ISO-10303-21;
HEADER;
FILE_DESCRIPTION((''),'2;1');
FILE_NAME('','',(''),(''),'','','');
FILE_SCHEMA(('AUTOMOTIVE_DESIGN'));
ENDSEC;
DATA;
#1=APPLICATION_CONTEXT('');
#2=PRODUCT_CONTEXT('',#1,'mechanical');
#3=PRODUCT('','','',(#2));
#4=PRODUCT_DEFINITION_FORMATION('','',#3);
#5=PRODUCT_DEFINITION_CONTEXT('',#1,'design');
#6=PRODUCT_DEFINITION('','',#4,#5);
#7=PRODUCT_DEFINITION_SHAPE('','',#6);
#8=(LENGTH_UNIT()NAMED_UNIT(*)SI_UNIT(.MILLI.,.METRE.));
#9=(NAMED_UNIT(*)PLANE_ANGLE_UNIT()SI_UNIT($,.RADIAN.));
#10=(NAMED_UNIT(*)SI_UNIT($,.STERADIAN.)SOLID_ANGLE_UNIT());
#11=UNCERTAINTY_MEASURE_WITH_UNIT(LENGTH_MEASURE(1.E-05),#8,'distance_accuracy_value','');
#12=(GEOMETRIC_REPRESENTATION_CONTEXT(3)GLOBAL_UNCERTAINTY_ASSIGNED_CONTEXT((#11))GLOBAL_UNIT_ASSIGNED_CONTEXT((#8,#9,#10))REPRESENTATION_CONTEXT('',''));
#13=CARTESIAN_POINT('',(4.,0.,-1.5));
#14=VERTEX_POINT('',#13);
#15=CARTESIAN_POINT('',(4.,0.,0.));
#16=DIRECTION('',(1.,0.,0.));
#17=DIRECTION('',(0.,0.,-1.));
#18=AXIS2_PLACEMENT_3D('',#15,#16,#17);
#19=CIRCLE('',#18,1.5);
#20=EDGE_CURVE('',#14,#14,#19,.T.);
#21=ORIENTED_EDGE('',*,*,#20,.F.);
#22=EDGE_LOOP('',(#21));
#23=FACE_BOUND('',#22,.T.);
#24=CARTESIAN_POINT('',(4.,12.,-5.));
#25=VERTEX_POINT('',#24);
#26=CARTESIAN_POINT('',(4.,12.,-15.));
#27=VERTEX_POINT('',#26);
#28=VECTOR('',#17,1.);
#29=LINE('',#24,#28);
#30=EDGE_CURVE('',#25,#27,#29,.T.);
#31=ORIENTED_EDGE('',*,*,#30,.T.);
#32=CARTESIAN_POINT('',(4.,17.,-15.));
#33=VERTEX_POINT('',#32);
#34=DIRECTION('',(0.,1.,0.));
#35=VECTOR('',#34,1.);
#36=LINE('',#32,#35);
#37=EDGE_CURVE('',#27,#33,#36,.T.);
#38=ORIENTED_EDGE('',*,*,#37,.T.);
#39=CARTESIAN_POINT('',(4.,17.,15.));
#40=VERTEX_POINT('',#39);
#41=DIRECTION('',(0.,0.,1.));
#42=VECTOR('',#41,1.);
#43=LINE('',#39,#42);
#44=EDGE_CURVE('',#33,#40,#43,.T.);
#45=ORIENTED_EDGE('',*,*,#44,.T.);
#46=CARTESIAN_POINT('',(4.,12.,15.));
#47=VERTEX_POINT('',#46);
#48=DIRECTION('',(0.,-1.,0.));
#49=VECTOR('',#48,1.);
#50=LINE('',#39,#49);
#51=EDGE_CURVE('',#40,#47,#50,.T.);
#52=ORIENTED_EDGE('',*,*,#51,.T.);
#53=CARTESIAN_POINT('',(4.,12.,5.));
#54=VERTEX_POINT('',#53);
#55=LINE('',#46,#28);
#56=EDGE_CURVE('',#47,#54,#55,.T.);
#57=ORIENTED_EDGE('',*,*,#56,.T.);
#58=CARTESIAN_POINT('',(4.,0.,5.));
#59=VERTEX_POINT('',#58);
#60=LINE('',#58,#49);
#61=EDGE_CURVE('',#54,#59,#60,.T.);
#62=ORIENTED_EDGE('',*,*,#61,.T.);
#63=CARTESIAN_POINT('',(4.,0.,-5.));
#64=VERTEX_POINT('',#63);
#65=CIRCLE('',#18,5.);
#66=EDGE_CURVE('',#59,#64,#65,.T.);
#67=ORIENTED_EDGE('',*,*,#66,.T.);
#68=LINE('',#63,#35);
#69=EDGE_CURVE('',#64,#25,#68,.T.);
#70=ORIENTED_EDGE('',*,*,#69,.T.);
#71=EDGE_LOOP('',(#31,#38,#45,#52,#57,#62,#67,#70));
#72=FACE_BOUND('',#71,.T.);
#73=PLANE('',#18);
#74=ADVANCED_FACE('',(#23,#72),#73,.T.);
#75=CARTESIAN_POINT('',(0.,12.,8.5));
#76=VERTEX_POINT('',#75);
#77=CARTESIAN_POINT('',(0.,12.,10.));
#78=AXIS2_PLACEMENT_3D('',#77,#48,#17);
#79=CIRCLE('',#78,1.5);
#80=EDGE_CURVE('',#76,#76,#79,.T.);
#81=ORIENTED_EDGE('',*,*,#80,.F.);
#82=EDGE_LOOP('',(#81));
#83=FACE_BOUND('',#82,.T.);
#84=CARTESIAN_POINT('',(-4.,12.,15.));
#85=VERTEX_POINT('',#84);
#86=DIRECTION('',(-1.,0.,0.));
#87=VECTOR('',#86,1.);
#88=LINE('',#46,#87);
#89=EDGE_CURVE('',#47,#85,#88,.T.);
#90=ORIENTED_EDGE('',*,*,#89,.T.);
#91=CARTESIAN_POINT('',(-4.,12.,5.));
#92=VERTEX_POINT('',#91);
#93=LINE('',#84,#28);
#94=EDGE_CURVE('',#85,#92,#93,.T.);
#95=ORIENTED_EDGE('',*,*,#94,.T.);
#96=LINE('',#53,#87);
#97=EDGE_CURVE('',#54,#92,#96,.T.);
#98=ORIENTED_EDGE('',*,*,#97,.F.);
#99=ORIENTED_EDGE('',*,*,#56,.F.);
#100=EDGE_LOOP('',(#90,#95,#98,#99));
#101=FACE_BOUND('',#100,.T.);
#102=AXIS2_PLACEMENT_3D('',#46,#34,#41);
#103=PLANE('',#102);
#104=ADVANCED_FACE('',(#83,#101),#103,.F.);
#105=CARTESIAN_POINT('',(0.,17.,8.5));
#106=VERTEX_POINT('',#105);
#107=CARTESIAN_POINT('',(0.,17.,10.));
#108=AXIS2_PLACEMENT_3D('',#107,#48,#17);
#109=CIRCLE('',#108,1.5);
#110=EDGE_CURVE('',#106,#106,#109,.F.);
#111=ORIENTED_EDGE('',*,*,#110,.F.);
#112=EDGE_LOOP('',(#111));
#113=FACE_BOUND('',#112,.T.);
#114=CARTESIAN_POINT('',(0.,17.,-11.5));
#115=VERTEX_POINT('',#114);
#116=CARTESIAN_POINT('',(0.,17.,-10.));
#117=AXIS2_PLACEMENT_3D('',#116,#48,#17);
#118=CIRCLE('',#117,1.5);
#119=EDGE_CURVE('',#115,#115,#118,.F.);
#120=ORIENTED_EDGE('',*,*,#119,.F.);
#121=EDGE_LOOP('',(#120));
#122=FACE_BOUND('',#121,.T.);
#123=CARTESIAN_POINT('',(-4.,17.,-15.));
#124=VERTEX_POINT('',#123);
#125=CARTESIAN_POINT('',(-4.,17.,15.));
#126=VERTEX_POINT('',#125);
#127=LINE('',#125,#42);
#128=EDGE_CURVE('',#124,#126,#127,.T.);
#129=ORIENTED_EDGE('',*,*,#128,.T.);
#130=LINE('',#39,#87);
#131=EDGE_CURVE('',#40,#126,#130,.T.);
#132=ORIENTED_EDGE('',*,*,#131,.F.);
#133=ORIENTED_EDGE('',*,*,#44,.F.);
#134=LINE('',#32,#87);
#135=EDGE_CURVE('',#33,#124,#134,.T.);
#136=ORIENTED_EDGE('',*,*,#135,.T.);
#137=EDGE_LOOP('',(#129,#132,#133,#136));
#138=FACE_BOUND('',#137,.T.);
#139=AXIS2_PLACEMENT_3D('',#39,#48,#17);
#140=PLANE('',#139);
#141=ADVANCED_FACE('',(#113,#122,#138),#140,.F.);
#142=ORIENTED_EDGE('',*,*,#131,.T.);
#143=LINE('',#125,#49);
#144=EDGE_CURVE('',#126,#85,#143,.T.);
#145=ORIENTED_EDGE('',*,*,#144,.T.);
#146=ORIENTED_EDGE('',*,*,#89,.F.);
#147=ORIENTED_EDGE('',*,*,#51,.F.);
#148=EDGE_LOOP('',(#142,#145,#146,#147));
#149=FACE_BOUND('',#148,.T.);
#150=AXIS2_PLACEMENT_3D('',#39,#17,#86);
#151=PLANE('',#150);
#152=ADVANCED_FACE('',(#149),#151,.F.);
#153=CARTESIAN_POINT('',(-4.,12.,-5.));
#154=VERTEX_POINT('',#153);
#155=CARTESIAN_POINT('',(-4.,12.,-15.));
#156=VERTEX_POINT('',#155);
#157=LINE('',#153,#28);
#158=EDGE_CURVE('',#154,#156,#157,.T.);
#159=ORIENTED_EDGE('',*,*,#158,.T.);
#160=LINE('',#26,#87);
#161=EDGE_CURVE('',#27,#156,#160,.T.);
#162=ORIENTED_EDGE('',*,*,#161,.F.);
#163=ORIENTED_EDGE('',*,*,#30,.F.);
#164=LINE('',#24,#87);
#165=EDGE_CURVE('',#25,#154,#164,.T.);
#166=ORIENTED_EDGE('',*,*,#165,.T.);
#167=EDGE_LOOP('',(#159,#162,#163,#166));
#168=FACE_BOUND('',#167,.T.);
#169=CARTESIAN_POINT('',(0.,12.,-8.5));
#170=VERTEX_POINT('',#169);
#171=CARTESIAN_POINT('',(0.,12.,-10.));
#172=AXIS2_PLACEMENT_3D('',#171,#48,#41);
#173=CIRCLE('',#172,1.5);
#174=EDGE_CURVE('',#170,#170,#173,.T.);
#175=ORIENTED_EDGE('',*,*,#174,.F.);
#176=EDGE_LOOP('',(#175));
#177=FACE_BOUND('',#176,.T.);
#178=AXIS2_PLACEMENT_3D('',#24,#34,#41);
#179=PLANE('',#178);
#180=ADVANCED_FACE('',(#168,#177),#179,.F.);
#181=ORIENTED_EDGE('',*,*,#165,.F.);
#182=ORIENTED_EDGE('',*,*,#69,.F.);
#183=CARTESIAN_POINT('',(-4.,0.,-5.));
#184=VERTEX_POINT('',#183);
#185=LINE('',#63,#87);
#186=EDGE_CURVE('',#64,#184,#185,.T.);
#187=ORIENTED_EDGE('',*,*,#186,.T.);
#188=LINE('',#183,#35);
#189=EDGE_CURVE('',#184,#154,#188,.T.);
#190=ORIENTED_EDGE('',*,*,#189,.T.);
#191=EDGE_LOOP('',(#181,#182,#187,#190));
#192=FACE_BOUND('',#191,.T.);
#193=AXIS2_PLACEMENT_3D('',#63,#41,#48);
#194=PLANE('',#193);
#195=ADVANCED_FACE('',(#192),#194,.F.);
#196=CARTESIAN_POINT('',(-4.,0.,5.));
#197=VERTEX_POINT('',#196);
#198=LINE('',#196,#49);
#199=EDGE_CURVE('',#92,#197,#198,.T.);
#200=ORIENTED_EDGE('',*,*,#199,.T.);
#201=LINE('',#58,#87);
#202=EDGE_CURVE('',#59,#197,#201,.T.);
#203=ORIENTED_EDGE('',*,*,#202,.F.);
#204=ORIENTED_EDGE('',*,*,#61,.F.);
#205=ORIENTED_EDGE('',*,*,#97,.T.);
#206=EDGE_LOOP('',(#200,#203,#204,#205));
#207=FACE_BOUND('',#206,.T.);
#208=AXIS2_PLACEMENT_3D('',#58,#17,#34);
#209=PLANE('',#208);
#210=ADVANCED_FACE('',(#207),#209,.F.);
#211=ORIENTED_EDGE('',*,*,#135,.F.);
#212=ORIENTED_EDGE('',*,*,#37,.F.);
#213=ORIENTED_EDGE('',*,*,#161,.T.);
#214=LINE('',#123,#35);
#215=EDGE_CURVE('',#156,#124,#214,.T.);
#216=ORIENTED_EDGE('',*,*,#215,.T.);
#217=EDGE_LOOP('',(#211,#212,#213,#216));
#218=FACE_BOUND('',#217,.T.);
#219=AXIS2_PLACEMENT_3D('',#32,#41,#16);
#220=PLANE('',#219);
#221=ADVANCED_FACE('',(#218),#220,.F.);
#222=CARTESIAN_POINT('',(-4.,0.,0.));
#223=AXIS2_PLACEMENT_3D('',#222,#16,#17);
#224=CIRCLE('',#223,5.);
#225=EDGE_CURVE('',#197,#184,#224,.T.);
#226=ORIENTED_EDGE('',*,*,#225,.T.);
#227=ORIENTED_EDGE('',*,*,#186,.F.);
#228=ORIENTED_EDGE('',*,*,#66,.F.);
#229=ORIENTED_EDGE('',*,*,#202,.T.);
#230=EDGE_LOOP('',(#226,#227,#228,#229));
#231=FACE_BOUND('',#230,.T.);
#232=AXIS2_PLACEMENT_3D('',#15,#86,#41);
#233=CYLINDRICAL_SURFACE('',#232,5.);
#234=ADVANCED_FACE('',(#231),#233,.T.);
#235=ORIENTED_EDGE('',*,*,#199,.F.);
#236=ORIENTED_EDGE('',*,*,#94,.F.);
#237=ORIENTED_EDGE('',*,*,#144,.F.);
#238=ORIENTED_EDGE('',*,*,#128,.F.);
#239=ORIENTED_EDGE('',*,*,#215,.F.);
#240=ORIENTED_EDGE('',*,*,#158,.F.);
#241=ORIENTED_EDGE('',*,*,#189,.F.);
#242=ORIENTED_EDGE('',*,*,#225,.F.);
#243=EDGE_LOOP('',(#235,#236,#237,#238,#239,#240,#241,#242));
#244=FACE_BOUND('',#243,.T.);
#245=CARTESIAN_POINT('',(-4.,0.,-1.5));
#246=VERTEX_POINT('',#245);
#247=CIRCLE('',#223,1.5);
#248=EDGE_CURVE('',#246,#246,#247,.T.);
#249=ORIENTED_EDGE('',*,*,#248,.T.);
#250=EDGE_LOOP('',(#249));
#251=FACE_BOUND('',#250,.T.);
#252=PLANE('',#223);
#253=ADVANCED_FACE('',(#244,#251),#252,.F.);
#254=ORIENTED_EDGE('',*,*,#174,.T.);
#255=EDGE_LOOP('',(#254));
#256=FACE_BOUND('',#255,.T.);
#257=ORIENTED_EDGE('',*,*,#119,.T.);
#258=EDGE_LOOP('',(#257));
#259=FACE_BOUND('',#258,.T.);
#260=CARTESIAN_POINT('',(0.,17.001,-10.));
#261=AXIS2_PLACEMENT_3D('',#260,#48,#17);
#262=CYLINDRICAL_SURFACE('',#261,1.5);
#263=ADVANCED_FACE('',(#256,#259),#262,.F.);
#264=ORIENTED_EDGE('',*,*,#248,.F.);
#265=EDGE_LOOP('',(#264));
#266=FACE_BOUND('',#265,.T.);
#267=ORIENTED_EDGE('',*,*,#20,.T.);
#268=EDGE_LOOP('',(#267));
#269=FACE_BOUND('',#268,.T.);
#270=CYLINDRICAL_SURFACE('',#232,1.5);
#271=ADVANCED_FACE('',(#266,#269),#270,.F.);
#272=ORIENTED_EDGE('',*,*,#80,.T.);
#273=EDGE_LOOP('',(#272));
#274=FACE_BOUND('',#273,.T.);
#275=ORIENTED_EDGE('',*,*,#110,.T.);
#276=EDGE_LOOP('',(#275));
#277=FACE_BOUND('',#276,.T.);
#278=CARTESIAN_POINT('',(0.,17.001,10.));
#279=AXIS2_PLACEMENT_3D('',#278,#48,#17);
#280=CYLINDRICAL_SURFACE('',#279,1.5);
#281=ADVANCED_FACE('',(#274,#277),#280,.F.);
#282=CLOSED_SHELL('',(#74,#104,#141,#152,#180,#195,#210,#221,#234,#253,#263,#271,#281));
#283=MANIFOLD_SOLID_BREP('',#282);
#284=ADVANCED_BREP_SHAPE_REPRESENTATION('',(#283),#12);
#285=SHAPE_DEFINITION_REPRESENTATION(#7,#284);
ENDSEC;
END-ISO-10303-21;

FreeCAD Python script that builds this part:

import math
import FreeCAD as App
import Part
import Sketcher
from FreeCAD import Vector

doc = App.newDocument("Part")
body = doc.addObject("PartDesign::Body", "Body")

# Sketch on YZ plane
sketch1 = body.newObject("Sketcher::SketchObject", "Sketch")
sketch1.AttachmentSupport = (doc.getObject("YZ_Plane"), [""])
sketch1.MapMode = "FlatFace"
sketch1.addGeometry(Part.LineSegment(Vector(12, -5, 0), Vector(12, -15, 0)), False)
sketch1.addGeometry(Part.LineSegment(Vector(12, -15, 0), Vector(17, -15, 0)), False)
sketch1.addGeometry(Part.LineSegment(Vector(17, -15, 0), Vector(17, 15, 0)), False)
sketch1.addGeometry(Part.LineSegment(Vector(17, 15, 0), Vector(12, 15, 0)), False)
sketch1.addGeometry(Part.LineSegment(Vector(12, 15, 0), Vector(12, 5, 0)), False)
sketch1.addGeometry(Part.LineSegment(Vector(12, 5, 0), Vector(0, 5, 0)), False)
sketch1.addGeometry(Part.ArcOfCircle(Part.Circle(Vector(0, 0, 0), Vector(0, 0, 1), 5), math.radians(90), math.radians(270)), False)
sketch1.addGeometry(Part.LineSegment(Vector(0, -5, 0), Vector(12, -5, 0)), False)
sketch1.addGeometry(Part.Circle(Vector(0, 0, 0), Vector(0, 0, 1), 1.5), False)
sketch1.addConstraint(Sketcher.Constraint("Coincident", 0, 2, 1, 1))
sketch1.addConstraint(Sketcher.Constraint("Coincident", 1, 2, 2, 1))
sketch1.addConstraint(Sketcher.Constraint("Coincident", 2, 2, 3, 1))
sketch1.addConstraint(Sketcher.Constraint("Coincident", 3, 2, 4, 1))
sketch1.addConstraint(Sketcher.Constraint("Coincident", 4, 2, 5, 1))
sketch1.addConstraint(Sketcher.Constraint("Tangent", 5, 2, 6, 1))
sketch1.addConstraint(Sketcher.Constraint("Tangent", 6, 2, 7, 1))
sketch1.addConstraint(Sketcher.Constraint("Coincident", 7, 2, 0, 1))
sketch1.addConstraint(Sketcher.Constraint("Vertical", 0))
sketch1.addConstraint(Sketcher.Constraint("Horizontal", 1))
sketch1.addConstraint(Sketcher.Constraint("Vertical", 2))
sketch1.addConstraint(Sketcher.Constraint("Horizontal", 3))
sketch1.addConstraint(Sketcher.Constraint("Vertical", 4))
sketch1.addConstraint(Sketcher.Constraint("Horizontal", 5))
sketch1.addConstraint(Sketcher.Constraint("Horizontal", 7))
sketch1.addConstraint(Sketcher.Constraint("Coincident", 6, 3, -1, 1))
sketch1.addConstraint(Sketcher.Constraint("Coincident", 8, 3, -1, 1))
sketch1.addConstraint(Sketcher.Constraint("Symmetric", 0, 2, 3, 2, -1))
sketch1.addConstraint(Sketcher.Constraint("Diameter", 8, 3.0))
sketch1.addConstraint(Sketcher.Constraint("Radius", 6, 5.0))
sketch1.addConstraint(Sketcher.Constraint("DistanceX", 1, 1, 1, 2, 5.0))
sketch1.addConstraint(Sketcher.Constraint("DistanceX", 5, 2, 5, 1, 12.0))
sketch1.addConstraint(Sketcher.Constraint("DistanceY", 0, 2, 0, 1, 10.0))
pad1 = body.newObject("PartDesign::Pad", "Pad")
pad1.Profile = sketch1
pad1.Length = 8
pad1.Midplane = True

# Sketch on XZ plane
sketch2 = body.newObject("Sketcher::SketchObject", "Sketch001")
sketch2.AttachmentSupport = (doc.getObject("XZ_Plane"), [""])
sketch2.MapMode = "FlatFace"
sketch2.AttachmentOffset = App.Placement(Vector(0, 0, -12), App.Rotation())
sketch2.addGeometry(Part.Circle(Vector(0, 10, 0), Vector(0, 0, 1), 1.5), False)
sketch2.addConstraint(Sketcher.Constraint("PointOnObject", 0, 3, -2))
sketch2.addConstraint(Sketcher.Constraint("Diameter", 0, 3.0))
sketch2.addConstraint(Sketcher.Constraint("DistanceY", -1, 1, 0, 3, 10.0))
pocket1 = body.newObject("PartDesign::Pocket", "Pocket")
pocket1.Profile = sketch2
pocket1.Type = "UpToFirst"

# Sketch on XZ plane
sketch3 = body.newObject("Sketcher::SketchObject", "Sketch002")
sketch3.AttachmentSupport = (doc.getObject("XZ_Plane"), [""])
sketch3.MapMode = "FlatFace"
sketch3.AttachmentOffset = App.Placement(Vector(0, 0, -12), App.Rotation())
sketch3.addGeometry(Part.Circle(Vector(0, -10, 0), Vector(0, 0, 1), 1.5), False)
sketch3.addConstraint(Sketcher.Constraint("PointOnObject", 0, 3, -2))
sketch3.addConstraint(Sketcher.Constraint("Diameter", 0, 3.0))
sketch3.addConstraint(Sketcher.Constraint("DistanceY", 0, 3, -1, 1, 10.0))
pocket2 = body.newObject("PartDesign::Pocket", "Pocket001")
pocket2.Profile = sketch3
pocket2.Type = "UpToFirst"

doc.recompute()
